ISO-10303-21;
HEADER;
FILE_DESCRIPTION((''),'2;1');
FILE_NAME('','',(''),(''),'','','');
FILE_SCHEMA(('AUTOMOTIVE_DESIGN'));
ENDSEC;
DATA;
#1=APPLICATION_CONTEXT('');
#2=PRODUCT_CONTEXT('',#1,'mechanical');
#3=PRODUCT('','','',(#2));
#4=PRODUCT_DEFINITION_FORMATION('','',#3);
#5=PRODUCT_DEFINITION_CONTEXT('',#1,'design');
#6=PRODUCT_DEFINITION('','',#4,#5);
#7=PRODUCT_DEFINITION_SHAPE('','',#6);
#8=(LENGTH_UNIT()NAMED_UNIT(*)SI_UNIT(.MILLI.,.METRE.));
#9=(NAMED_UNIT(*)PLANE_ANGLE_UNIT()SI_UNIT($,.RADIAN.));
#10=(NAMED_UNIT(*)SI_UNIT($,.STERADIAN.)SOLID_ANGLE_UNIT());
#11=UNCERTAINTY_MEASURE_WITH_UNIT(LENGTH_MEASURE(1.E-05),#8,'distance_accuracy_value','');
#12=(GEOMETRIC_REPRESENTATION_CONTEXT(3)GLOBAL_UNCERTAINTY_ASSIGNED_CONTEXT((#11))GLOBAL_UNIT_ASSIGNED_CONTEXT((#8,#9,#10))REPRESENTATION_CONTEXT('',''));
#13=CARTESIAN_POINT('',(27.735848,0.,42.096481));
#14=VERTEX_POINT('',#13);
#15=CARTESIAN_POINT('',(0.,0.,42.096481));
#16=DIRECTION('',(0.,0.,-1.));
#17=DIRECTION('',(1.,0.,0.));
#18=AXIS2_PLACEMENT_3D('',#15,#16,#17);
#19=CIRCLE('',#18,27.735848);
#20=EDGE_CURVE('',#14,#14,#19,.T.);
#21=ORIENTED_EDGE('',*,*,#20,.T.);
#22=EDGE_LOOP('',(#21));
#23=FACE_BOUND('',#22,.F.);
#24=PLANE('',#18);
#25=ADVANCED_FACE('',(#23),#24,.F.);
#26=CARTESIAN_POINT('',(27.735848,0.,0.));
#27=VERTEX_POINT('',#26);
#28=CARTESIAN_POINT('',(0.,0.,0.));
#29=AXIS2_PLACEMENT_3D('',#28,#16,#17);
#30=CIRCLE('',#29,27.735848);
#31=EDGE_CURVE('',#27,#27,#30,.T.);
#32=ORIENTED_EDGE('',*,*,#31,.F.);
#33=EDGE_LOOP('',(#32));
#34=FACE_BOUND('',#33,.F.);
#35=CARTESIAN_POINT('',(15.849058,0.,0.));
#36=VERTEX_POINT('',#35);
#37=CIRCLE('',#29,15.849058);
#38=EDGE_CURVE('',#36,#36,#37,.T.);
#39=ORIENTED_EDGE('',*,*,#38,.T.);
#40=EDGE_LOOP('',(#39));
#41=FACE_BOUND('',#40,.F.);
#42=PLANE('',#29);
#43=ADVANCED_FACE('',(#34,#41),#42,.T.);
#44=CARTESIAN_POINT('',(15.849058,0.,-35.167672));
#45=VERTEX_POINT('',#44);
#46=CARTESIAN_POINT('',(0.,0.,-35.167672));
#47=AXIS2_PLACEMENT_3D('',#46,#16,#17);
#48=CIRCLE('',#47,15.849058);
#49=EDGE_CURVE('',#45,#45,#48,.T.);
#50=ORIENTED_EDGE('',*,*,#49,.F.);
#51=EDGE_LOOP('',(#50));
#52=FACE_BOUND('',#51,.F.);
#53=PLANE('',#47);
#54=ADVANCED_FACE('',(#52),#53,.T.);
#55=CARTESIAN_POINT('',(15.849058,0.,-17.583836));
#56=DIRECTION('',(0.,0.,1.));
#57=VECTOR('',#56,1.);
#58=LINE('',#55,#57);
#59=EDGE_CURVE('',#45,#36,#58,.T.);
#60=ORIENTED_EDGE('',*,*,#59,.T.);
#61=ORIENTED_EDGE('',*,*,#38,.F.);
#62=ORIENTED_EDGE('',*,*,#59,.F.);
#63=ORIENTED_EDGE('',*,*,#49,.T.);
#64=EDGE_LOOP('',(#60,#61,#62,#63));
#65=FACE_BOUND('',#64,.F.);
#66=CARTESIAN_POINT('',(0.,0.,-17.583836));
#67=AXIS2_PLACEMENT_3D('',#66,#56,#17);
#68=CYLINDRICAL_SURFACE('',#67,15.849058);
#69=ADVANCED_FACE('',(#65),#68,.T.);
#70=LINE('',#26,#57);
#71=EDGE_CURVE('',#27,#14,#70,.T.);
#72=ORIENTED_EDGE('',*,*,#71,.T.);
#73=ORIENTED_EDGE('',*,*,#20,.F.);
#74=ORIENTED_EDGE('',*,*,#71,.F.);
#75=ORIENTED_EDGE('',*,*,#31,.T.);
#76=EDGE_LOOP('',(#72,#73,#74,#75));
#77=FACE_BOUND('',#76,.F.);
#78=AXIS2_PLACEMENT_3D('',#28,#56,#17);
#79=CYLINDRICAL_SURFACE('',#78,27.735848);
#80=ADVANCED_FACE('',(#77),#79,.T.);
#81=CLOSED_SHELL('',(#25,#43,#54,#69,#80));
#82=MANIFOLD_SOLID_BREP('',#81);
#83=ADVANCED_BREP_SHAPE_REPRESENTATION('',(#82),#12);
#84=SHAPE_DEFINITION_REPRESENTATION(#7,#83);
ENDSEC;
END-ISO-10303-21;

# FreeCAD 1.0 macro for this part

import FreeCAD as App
import Part
import Sketcher
Q = App.Units.Quantity


def add_polygon(sketch, points):
    """Adds a closed chain of lines whose ends are joined by coincident constraints."""
    first, n = sketch.GeometryCount, len(points)
    for a, b in zip(points, points[1:] + points[:1]):
        sketch.addGeometry(Part.LineSegment(App.Vector(*a, 0), App.Vector(*b, 0)), False)
    for i in range(n):
        sketch.addConstraint(Sketcher.Constraint("Coincident", first + i, 2, first + (i + 1) % n, 1))

doc = App.newDocument("Part")
params = doc.addObject("Spreadsheet::Sheet", "Params")
for row, (alias, value) in enumerate([
    ("revolution_angle", "360 deg"),
], start=1):
    params.set(f"A{row}", alias)
    params.set(f"B{row}", "=" + value)
    params.setAlias(f"B{row}", alias)

body = doc.addObject("PartDesign::Body", "Body")

sketch1 = body.newObject("Sketcher::SketchObject", "Sketch")
sketch1.AttachmentSupport = (doc.getObject("XZ_Plane"), [""])
sketch1.MapMode = "FlatFace"
add_polygon(sketch1, [(28, 42), (0, 42), (0, -35), (16, -35), (16, 0), (28, 0)])
sketch1.addConstraint(Sketcher.Constraint("Horizontal", 0))
sketch1.addConstraint(Sketcher.Constraint("Vertical", 1))
sketch1.addConstraint(Sketcher.Constraint("Horizontal", 2))
sketch1.addConstraint(Sketcher.Constraint("Vertical", 3))
sketch1.addConstraint(Sketcher.Constraint("Horizontal", 4))
sketch1.addConstraint(Sketcher.Constraint("Vertical", 5))
sketch1.addConstraint(Sketcher.Constraint("PointOnObject", 0, 2, -2))
sketch1.addConstraint(Sketcher.Constraint("PointOnObject", 3, 2, -1))
sketch1.addConstraint(Sketcher.Constraint("DistanceX", 0, 2, 0, 1, Q("27.735848 mm")))
sketch1.addConstraint(Sketcher.Constraint("DistanceX", 4, 1, 4, 2, Q("11.88679 mm")))
sketch1.addConstraint(Sketcher.Constraint("DistanceY", 5, 1, 5, 2, Q("42.096481 mm")))
sketch1.addConstraint(Sketcher.Constraint("DistanceY", 1, 2, 1, 1, Q("77.264153 mm")))
revolution = body.newObject("PartDesign::Revolution", "Revolution")
revolution.Profile = sketch1
revolution.ReferenceAxis = (sketch1, ["V_Axis"])
revolution.setExpression("Angle", "Params.revolution_angle")

doc.recompute()
